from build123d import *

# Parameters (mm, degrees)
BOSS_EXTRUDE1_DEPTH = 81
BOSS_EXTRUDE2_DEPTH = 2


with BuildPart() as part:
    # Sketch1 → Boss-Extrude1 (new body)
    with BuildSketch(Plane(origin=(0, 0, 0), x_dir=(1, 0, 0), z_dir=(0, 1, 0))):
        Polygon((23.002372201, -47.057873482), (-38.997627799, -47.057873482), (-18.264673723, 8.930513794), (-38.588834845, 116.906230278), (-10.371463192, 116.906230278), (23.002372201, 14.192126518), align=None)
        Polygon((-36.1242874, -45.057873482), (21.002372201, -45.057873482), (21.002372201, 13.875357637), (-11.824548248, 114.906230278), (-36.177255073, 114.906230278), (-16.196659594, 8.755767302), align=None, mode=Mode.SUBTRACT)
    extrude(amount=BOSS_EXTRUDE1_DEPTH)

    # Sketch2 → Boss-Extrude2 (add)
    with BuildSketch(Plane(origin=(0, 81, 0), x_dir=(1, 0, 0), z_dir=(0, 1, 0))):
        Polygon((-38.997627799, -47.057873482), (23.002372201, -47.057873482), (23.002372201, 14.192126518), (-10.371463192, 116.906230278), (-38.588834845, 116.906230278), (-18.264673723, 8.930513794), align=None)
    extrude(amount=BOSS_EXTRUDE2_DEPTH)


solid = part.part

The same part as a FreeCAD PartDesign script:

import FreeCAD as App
import Part
import Sketcher
Q = App.Units.Quantity


def add_polygon(sketch, points):
    """Adds a closed chain of lines whose ends are joined by coincident constraints."""
    first, n = sketch.GeometryCount, len(points)
    for a, b in zip(points, points[1:] + points[:1]):
        sketch.addGeometry(Part.LineSegment(App.Vector(*a, 0), App.Vector(*b, 0)), False)
    for i in range(n):
        sketch.addConstraint(Sketcher.Constraint("Coincident", first + i, 2, first + (i + 1) % n, 1))

doc = App.newDocument("Part")
body = doc.addObject("PartDesign::Body", "Body")

sketch1 = doc.addObject("Sketcher::SketchObject", "Sketch")
body.addObject(sketch1)
sketch1.AttachmentSupport = (doc.XZ_Plane, [""])
sketch1.MapMode = "FlatFace"
add_polygon(sketch1, [(-38.997628, 47.057873), (23.002372, 47.057873), (23.002372, -14.192127), (-10.371463, -116.90623), (-38.588835, -116.90623), (-18.264674, -8.930514)])
add_polygon(sketch1, [(-36.124287, 45.057873), (-16.19666, -8.755767), (-36.177255, -114.90623), (-11.824548, -114.90623), (21.002372, -13.875358), (21.002372, 45.057873)])
sketch1.addConstraint(Sketcher.Constraint("Horizontal", 0))
sketch1.addConstraint(Sketcher.Constraint("Vertical", 1))
sketch1.addConstraint(Sketcher.Constraint("Horizontal", 3))
sketch1.addConstraint(Sketcher.Constraint("Horizontal", 8))
sketch1.addConstraint(Sketcher.Constraint("Vertical", 10))
sketch1.addConstraint(Sketcher.Constraint("Horizontal", 11))
sketch1.addConstraint(Sketcher.Constraint("Parallel", 5, 6))
sketch1.addConstraint(Sketcher.Constraint("Parallel", 4, 7))
sketch1.addConstraint(Sketcher.Constraint("Parallel", 2, 9))
sketch1.addConstraint(Sketcher.Constraint("DistanceX", 0, 1, 0, 2, 62.0))
sketch1.addConstraint(Sketcher.Constraint("Angle", 2, Q("-108 deg")))
sketch1.addConstraint(Sketcher.Constraint("Distance", 2, 108.0))
sketch1.addConstraint(Sketcher.Constraint("DistanceY", 3, 2, 7, 2, 2.0))
sketch1.addConstraint(Sketcher.Constraint("DistanceX", 9, 2, 1, 2, 2.0))
sketch1.addConstraint(Sketcher.Constraint("DistanceY", 10, 2, 0, 2, 2.0))
sketch1.addConstraint(Sketcher.Constraint("DistanceY", 1, 2, 1, 1, 61.25))
sketch1.addConstraint(Sketcher.Constraint("Angle", 4, Q("79.34 deg")))
sketch1.addConstraint(Sketcher.Constraint("Angle", 5, Q("110.32 deg")))
sketch1.addConstraint(Sketcher.Constraint("DistanceX", 3, 2, 3, 1, 28.217372))
sketch1.addConstraint(Sketcher.Constraint("DistanceX", 11, 2, 11, 1, 57.12666))
sketch1.addConstraint(Sketcher.Constraint("DistanceY", 10, 1, 10, 2, 58.933231))
sketch1.addConstraint(Sketcher.Constraint("Distance", 7, 108.014559))
sketch1.addConstraint(Sketcher.Constraint("DistanceY", 2, 2, -1, 1, 116.90623))
sketch1.addConstraint(Sketcher.Constraint("DistanceX", 6, 2, -1, 1, 16.19666))
pad1 = doc.addObject("PartDesign::Pad", "Pad")
body.addObject(pad1)
pad1.Profile = sketch1
pad1.Length = 81
pad1.Reversed = True

sketch2 = doc.addObject("Sketcher::SketchObject", "Sketch001")
body.addObject(sketch2)
sketch2.AttachmentSupport = (doc.XZ_Plane, [""])
sketch2.MapMode = "FlatFace"
sketch2.AttachmentOffset = App.Placement(App.Vector(0, 0, -81), App.Rotation())
add_polygon(sketch2, [(-38.997628, 47.057873), (23.002372, 47.057873), (23.002372, -14.192127), (-10.371463, -116.90623), (-38.588835, -116.90623), (-18.264674, -8.930514)])
sketch2.addConstraint(Sketcher.Constraint("Horizontal", 0))
sketch2.addConstraint(Sketcher.Constraint("Vertical", 1))
sketch2.addConstraint(Sketcher.Constraint("Horizontal", 3))
sketch2.addConstraint(Sketcher.Constraint("DistanceX", 0, 1, 0, 2, 62.0))
sketch2.addConstraint(Sketcher.Constraint("Angle", 2, Q("-108 deg")))
sketch2.addConstraint(Sketcher.Constraint("Distance", 2, 108.0))
sketch2.addConstraint(Sketcher.Constraint("DistanceY", 1, 2, 1, 1, 61.25))
sketch2.addConstraint(Sketcher.Constraint("Angle", 4, Q("79.34 deg")))
sketch2.addConstraint(Sketcher.Constraint("Angle", 5, Q("110.32 deg")))
sketch2.addConstraint(Sketcher.Constraint("DistanceX", 3, 2, 3, 1, 28.217372))
sketch2.addConstraint(Sketcher.Constraint("DistanceY", 2, 2, -1, 1, 116.90623))
sketch2.addConstraint(Sketcher.Constraint("DistanceX", -1, 1, 0, 2, 23.002372))
pad2 = doc.addObject("PartDesign::Pad", "Pad001")
body.addObject(pad2)
pad2.Profile = sketch2
pad2.Length = 2
pad2.Reversed = True

doc.recompute()
